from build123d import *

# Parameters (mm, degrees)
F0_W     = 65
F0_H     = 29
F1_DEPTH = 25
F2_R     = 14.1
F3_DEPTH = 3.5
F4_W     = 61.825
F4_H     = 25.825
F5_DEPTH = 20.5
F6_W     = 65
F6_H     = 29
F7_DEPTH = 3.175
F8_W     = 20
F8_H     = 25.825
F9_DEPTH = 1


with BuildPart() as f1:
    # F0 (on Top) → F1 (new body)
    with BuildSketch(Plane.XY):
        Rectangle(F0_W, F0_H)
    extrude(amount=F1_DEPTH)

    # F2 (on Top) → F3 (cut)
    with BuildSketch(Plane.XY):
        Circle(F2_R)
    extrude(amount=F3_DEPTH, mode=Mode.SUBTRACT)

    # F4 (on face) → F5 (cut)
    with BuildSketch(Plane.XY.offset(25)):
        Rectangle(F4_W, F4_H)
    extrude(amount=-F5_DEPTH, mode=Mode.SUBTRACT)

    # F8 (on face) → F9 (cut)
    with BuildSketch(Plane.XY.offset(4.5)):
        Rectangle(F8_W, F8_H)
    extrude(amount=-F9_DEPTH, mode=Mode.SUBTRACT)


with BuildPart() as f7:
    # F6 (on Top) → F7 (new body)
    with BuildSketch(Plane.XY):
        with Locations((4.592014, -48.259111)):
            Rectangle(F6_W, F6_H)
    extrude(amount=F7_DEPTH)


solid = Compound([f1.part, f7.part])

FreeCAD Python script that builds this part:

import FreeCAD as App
import Part
import Sketcher

V = App.Vector

doc = App.newDocument("Part")
body = doc.addObject("PartDesign::Body", "Body")

# Sketch on XY plane
sketch1 = body.newObject("Sketcher::SketchObject", "Sketch")
sketch1.AttachmentSupport = (doc.getObject("XY_Plane"), [""])
sketch1.MapMode = "FlatFace"
sketch1.addGeometry([
    Part.LineSegment(V(-32, 14, 0), V(-32, -14, 0)),
    Part.LineSegment(V(-32, -14, 0), V(32, -14, 0)),
    Part.LineSegment(V(32, -14, 0), V(32, 14, 0)),
    Part.LineSegment(V(32, 14, 0), V(-32, 14, 0)),
], False)
sketch1.addConstraint([
    Sketcher.Constraint("Coincident", 0, 2, 1, 1),
    Sketcher.Constraint("Coincident", 1, 2, 2, 1),
    Sketcher.Constraint("Coincident", 2, 2, 3, 1),
    Sketcher.Constraint("Coincident", 3, 2, 0, 1),
    Sketcher.Constraint("Vertical", 0),
    Sketcher.Constraint("Horizontal", 1),
    Sketcher.Constraint("Vertical", 2),
    Sketcher.Constraint("Horizontal", 3),
    Sketcher.Constraint("Symmetric", 0, 2, 2, 2, -1, 1),
    Sketcher.Constraint("DistanceX", 1, 1, 1, 2, 65.0),
    Sketcher.Constraint("DistanceY", 0, 2, 0, 1, 29.0),
])
pad1 = body.newObject("PartDesign::Pad", "Pad")
pad1.Profile = sketch1
pad1.Length = 25

# Sketch on XY plane
sketch2 = body.newObject("Sketcher::SketchObject", "Sketch001")
sketch2.AttachmentSupport = (doc.getObject("XY_Plane"), [""])
sketch2.MapMode = "FlatFace"
sketch2.addGeometry(Part.Circle(V(0, 0, 0), V(0, 0, 1), 14), False)
sketch2.addConstraint([
    Sketcher.Constraint("Coincident", 0, 3, -1, 1),
    Sketcher.Constraint("Diameter", 0, 28.2),
])
pocket1 = body.newObject("PartDesign::Pocket", "Pocket")
pocket1.Profile = sketch2
pocket1.Length = 3.5
pocket1.Reversed = True

# Sketch on XY plane
sketch3 = body.newObject("Sketcher::SketchObject", "Sketch002")
sketch3.AttachmentSupport = (doc.getObject("XY_Plane"), [""])
sketch3.MapMode = "FlatFace"
sketch3.AttachmentOffset = App.Placement(V(0, 0, 25), App.Rotation())
sketch3.addGeometry([
    Part.LineSegment(V(-31, 13, 0), V(-31, -13, 0)),
    Part.LineSegment(V(-31, -13, 0), V(31, -13, 0)),
    Part.LineSegment(V(31, -13, 0), V(31, 13, 0)),
    Part.LineSegment(V(31, 13, 0), V(-31, 13, 0)),
], False)
sketch3.addConstraint([
    Sketcher.Constraint("Coincident", 0, 2, 1, 1),
    Sketcher.Constraint("Coincident", 1, 2, 2, 1),
    Sketcher.Constraint("Coincident", 2, 2, 3, 1),
    Sketcher.Constraint("Coincident", 3, 2, 0, 1),
    Sketcher.Constraint("Vertical", 0),
    Sketcher.Constraint("Horizontal", 1),
    Sketcher.Constraint("Vertical", 2),
    Sketcher.Constraint("Horizontal", 3),
    Sketcher.Constraint("Symmetric", 0, 2, 2, 2, -1, 1),
    Sketcher.Constraint("DistanceX", 1, 1, 1, 2, 61.825),
    Sketcher.Constraint("DistanceY", 0, 2, 0, 1, 25.825),
])
pocket2 = body.newObject("PartDesign::Pocket", "Pocket001")
pocket2.Profile = sketch3
pocket2.Length = 20.5

# Sketch on XY plane
sketch4 = body.newObject("Sketcher::SketchObject", "Sketch003")
sketch4.AttachmentSupport = (doc.getObject("XY_Plane"), [""])
sketch4.MapMode = "FlatFace"
sketch4.AttachmentOffset = App.Placement(V(0, 0, 4.5), App.Rotation())
sketch4.addGeometry([
    Part.LineSegment(V(-10, 13, 0), V(-10, -13, 0)),
    Part.LineSegment(V(-10, -13, 0), V(10, -13, 0)),
    Part.LineSegment(V(10, -13, 0), V(10, 13, 0)),
    Part.LineSegment(V(10, 13, 0), V(-10, 13, 0)),
], False)
sketch4.addConstraint([
    Sketcher.Constraint("Coincident", 0, 2, 1, 1),
    Sketcher.Constraint("Coincident", 1, 2, 2, 1),
    Sketcher.Constraint("Coincident", 2, 2, 3, 1),
    Sketcher.Constraint("Coincident", 3, 2, 0, 1),
    Sketcher.Constraint("Vertical", 0),
    Sketcher.Constraint("Horizontal", 1),
    Sketcher.Constraint("Vertical", 2),
    Sketcher.Constraint("Horizontal", 3),
    Sketcher.Constraint("Symmetric", 0, 2, 2, 2, -1, 1),
    Sketcher.Constraint("DistanceX", 1, 1, 1, 2, 20.0),
    Sketcher.Constraint("DistanceY", 0, 2, 0, 1, 25.825),
])
pocket3 = body.newObject("PartDesign::Pocket", "Pocket002")
pocket3.Profile = sketch4
pocket3.Length = 1
body2 = doc.addObject("PartDesign::Body", "Body001")

# Sketch on XY plane
sketch5 = body2.newObject("Sketcher::SketchObject", "Sketch004")
sketch5.AttachmentSupport = (doc.getObject("XY_Plane001"), [""])
sketch5.MapMode = "FlatFace"
sketch5.addGeometry([
    Part.LineSegment(V(-28, -34, 0), V(-28, -63, 0)),
    Part.LineSegment(V(-28, -63, 0), V(37, -63, 0)),
    Part.LineSegment(V(37, -63, 0), V(37, -34, 0)),
    Part.LineSegment(V(37, -34, 0), V(-28, -34, 0)),
], False)
sketch5.addConstraint([
    Sketcher.Constraint("Coincident", 0, 2, 1, 1),
    Sketcher.Constraint("Coincident", 1, 2, 2, 1),
    Sketcher.Constraint("Coincident", 2, 2, 3, 1),
    Sketcher.Constraint("Coincident", 3, 2, 0, 1),
    Sketcher.Constraint("Vertical", 0),
    Sketcher.Constraint("Horizontal", 1),
    Sketcher.Constraint("Vertical", 2),
    Sketcher.Constraint("Horizontal", 3),
    Sketcher.Constraint("DistanceX", 1, 1, 1, 2, 65.0),
    Sketcher.Constraint("DistanceY", 0, 2, 0, 1, 29.0),
    Sketcher.Constraint("DistanceY", 0, 2, -1, 1, 62.759111),
    Sketcher.Constraint("DistanceX", 0, 2, -1, 1, 27.907986),
])
pad2 = body2.newObject("PartDesign::Pad", "Pad001")
pad2.Profile = sketch5
pad2.Length = 3.175

doc.recompute()
